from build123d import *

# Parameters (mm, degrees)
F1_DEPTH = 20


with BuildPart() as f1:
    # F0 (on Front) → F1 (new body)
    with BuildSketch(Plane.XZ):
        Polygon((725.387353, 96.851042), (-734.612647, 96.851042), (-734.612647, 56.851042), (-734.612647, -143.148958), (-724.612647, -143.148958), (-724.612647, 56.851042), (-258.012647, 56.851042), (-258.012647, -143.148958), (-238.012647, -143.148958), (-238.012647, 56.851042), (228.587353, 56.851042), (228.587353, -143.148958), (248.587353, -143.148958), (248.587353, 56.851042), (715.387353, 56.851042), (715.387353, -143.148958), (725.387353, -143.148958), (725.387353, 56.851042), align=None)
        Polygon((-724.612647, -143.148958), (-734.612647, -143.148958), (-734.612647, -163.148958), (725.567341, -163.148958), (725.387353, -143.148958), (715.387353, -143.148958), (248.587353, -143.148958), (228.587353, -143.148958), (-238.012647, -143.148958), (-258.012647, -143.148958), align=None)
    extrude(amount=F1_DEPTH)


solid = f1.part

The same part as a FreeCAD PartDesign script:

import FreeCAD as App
import Part
import Sketcher

doc = App.newDocument("Part")
body = doc.addObject("PartDesign::Body", "Body")

# Sketch on XZ plane
sketch1 = body.newObject("Sketcher::SketchObject", "Sketch")
sketch1.AttachmentSupport = (doc.getObject("XZ_Plane"), [""])
sketch1.MapMode = "FlatFace"
sketch1.addGeometry([
    Part.LineSegment(App.Vector(725.387353, 96.851042, 0), App.Vector(-734.612647, 96.851042, 0)),  # 0
    Part.LineSegment(App.Vector(-734.612647, 96.851042, 0), App.Vector(-734.612647, -163.148958, 0)),  # 1
    Part.LineSegment(App.Vector(-734.612647, -163.148958, 0), App.Vector(725.567341, -163.148958, 0)),  # 2
    Part.LineSegment(App.Vector(725.567341, -163.148958, 0), App.Vector(725.387353, -143.148958, 0)),  # 3
    Part.LineSegment(App.Vector(725.387353, -143.148958, 0), App.Vector(725.387353, 96.851042, 0)),  # 4
    Part.LineSegment(App.Vector(-724.612647, -143.148958, 0), App.Vector(-724.612647, 56.851042, 0)),  # 5
    Part.LineSegment(App.Vector(-724.612647, 56.851042, 0), App.Vector(-258.012647, 56.851042, 0)),  # 6
    Part.LineSegment(App.Vector(-258.012647, 56.851042, 0), App.Vector(-258.012647, -143.148958, 0)),  # 7
    Part.LineSegment(App.Vector(-258.012647, -143.148958, 0), App.Vector(-724.612647, -143.148958, 0)),  # 8
    Part.LineSegment(App.Vector(-238.012647, -143.148958, 0), App.Vector(-238.012647, 56.851042, 0)),  # 9
    Part.LineSegment(App.Vector(-238.012647, 56.851042, 0), App.Vector(228.587353, 56.851042, 0)),  # 10
    Part.LineSegment(App.Vector(228.587353, 56.851042, 0), App.Vector(228.587353, -143.148958, 0)),  # 11
    Part.LineSegment(App.Vector(228.587353, -143.148958, 0), App.Vector(-238.012647, -143.148958, 0)),  # 12
    Part.LineSegment(App.Vector(248.587353, -143.148958, 0), App.Vector(248.587353, 56.851042, 0)),  # 13
    Part.LineSegment(App.Vector(248.587353, 56.851042, 0), App.Vector(715.387353, 56.851042, 0)),  # 14
    Part.LineSegment(App.Vector(715.387353, 56.851042, 0), App.Vector(715.387353, -143.148958, 0)),  # 15
    Part.LineSegment(App.Vector(715.387353, -143.148958, 0), App.Vector(248.587353, -143.148958, 0)),  # 16
], False)
sketch1.addConstraint([
    Sketcher.Constraint("Coincident", 0, 2, 1, 1),
    Sketcher.Constraint("Coincident", 1, 2, 2, 1),
    Sketcher.Constraint("Coincident", 2, 2, 3, 1),
    Sketcher.Constraint("Coincident", 3, 2, 4, 1),
    Sketcher.Constraint("Coincident", 4, 2, 0, 1),
    Sketcher.Constraint("Coincident", 5, 2, 6, 1),
    Sketcher.Constraint("Coincident", 6, 2, 7, 1),
    Sketcher.Constraint("Coincident", 7, 2, 8, 1),
    Sketcher.Constraint("Coincident", 8, 2, 5, 1),
    Sketcher.Constraint("Coincident", 9, 2, 10, 1),
    Sketcher.Constraint("Coincident", 10, 2, 11, 1),
    Sketcher.Constraint("Coincident", 11, 2, 12, 1),
    Sketcher.Constraint("Coincident", 12, 2, 9, 1),
    Sketcher.Constraint("Coincident", 13, 2, 14, 1),
    Sketcher.Constraint("Coincident", 14, 2, 15, 1),
    Sketcher.Constraint("Coincident", 15, 2, 16, 1),
    Sketcher.Constraint("Coincident", 16, 2, 13, 1),
    Sketcher.Constraint("Horizontal", 0),
    Sketcher.Constraint("Vertical", 1),
    Sketcher.Constraint("Horizontal", 2),
    Sketcher.Constraint("Vertical", 4),
    Sketcher.Constraint("Vertical", 5),
    Sketcher.Constraint("Horizontal", 6),
    Sketcher.Constraint("Vertical", 7),
    Sketcher.Constraint("Horizontal", 8),
    Sketcher.Constraint("Vertical", 9),
    Sketcher.Constraint("Horizontal", 10),
    Sketcher.Constraint("Vertical", 11),
    Sketcher.Constraint("Horizontal", 12),
    Sketcher.Constraint("Vertical", 13),
    Sketcher.Constraint("Horizontal", 14),
    Sketcher.Constraint("Vertical", 15),
    Sketcher.Constraint("Horizontal", 16),
    Sketcher.Constraint("Horizontal", 3, 2, 7, 2),
    Sketcher.Constraint("Horizontal", 6, 2, 9, 2),
    Sketcher.Constraint("Horizontal", 8, 2, 11, 2),
    Sketcher.Constraint("Horizontal", 10, 2, 13, 2),
    Sketcher.Constraint("Horizontal", 12, 2, 15, 2),
    Sketcher.Constraint("Equal", 8, 10),
    Sketcher.Constraint("DistanceX", 0, 2, 0, 1, 1460.0),
    Sketcher.Constraint("DistanceY", 1, 2, 1, 1, 260.0),
    Sketcher.Constraint("DistanceY", 4, 1, 4, 2, 240.0),
    Sketcher.Constraint("DistanceY", 5, 1, 5, 2, 200.0),
    Sketcher.Constraint("DistanceX", 6, 1, 6, 2, 466.6),
    Sketcher.Constraint("DistanceX", 14, 1, 14, 2, 466.8),
    Sketcher.Constraint("DistanceX", 0, 2, 5, 2, 10.0),
    Sketcher.Constraint("DistanceX", 6, 2, 9, 2, 20.0),
    Sketcher.Constraint("DistanceX", 10, 2, 13, 2, 20.0),
    Sketcher.Constraint("DistanceX", 2, 1, 2, 2, 1460.179988),
    Sketcher.Constraint("DistanceY", 1, 2, -1, 1, 163.148958),
    Sketcher.Constraint("DistanceX", -1, 1, 2, 2, 725.567341),
])
pad1 = body.newObject("PartDesign::Pad", "Pad")
pad1.Profile = sketch1
pad1.Length = 20

doc.recompute()
